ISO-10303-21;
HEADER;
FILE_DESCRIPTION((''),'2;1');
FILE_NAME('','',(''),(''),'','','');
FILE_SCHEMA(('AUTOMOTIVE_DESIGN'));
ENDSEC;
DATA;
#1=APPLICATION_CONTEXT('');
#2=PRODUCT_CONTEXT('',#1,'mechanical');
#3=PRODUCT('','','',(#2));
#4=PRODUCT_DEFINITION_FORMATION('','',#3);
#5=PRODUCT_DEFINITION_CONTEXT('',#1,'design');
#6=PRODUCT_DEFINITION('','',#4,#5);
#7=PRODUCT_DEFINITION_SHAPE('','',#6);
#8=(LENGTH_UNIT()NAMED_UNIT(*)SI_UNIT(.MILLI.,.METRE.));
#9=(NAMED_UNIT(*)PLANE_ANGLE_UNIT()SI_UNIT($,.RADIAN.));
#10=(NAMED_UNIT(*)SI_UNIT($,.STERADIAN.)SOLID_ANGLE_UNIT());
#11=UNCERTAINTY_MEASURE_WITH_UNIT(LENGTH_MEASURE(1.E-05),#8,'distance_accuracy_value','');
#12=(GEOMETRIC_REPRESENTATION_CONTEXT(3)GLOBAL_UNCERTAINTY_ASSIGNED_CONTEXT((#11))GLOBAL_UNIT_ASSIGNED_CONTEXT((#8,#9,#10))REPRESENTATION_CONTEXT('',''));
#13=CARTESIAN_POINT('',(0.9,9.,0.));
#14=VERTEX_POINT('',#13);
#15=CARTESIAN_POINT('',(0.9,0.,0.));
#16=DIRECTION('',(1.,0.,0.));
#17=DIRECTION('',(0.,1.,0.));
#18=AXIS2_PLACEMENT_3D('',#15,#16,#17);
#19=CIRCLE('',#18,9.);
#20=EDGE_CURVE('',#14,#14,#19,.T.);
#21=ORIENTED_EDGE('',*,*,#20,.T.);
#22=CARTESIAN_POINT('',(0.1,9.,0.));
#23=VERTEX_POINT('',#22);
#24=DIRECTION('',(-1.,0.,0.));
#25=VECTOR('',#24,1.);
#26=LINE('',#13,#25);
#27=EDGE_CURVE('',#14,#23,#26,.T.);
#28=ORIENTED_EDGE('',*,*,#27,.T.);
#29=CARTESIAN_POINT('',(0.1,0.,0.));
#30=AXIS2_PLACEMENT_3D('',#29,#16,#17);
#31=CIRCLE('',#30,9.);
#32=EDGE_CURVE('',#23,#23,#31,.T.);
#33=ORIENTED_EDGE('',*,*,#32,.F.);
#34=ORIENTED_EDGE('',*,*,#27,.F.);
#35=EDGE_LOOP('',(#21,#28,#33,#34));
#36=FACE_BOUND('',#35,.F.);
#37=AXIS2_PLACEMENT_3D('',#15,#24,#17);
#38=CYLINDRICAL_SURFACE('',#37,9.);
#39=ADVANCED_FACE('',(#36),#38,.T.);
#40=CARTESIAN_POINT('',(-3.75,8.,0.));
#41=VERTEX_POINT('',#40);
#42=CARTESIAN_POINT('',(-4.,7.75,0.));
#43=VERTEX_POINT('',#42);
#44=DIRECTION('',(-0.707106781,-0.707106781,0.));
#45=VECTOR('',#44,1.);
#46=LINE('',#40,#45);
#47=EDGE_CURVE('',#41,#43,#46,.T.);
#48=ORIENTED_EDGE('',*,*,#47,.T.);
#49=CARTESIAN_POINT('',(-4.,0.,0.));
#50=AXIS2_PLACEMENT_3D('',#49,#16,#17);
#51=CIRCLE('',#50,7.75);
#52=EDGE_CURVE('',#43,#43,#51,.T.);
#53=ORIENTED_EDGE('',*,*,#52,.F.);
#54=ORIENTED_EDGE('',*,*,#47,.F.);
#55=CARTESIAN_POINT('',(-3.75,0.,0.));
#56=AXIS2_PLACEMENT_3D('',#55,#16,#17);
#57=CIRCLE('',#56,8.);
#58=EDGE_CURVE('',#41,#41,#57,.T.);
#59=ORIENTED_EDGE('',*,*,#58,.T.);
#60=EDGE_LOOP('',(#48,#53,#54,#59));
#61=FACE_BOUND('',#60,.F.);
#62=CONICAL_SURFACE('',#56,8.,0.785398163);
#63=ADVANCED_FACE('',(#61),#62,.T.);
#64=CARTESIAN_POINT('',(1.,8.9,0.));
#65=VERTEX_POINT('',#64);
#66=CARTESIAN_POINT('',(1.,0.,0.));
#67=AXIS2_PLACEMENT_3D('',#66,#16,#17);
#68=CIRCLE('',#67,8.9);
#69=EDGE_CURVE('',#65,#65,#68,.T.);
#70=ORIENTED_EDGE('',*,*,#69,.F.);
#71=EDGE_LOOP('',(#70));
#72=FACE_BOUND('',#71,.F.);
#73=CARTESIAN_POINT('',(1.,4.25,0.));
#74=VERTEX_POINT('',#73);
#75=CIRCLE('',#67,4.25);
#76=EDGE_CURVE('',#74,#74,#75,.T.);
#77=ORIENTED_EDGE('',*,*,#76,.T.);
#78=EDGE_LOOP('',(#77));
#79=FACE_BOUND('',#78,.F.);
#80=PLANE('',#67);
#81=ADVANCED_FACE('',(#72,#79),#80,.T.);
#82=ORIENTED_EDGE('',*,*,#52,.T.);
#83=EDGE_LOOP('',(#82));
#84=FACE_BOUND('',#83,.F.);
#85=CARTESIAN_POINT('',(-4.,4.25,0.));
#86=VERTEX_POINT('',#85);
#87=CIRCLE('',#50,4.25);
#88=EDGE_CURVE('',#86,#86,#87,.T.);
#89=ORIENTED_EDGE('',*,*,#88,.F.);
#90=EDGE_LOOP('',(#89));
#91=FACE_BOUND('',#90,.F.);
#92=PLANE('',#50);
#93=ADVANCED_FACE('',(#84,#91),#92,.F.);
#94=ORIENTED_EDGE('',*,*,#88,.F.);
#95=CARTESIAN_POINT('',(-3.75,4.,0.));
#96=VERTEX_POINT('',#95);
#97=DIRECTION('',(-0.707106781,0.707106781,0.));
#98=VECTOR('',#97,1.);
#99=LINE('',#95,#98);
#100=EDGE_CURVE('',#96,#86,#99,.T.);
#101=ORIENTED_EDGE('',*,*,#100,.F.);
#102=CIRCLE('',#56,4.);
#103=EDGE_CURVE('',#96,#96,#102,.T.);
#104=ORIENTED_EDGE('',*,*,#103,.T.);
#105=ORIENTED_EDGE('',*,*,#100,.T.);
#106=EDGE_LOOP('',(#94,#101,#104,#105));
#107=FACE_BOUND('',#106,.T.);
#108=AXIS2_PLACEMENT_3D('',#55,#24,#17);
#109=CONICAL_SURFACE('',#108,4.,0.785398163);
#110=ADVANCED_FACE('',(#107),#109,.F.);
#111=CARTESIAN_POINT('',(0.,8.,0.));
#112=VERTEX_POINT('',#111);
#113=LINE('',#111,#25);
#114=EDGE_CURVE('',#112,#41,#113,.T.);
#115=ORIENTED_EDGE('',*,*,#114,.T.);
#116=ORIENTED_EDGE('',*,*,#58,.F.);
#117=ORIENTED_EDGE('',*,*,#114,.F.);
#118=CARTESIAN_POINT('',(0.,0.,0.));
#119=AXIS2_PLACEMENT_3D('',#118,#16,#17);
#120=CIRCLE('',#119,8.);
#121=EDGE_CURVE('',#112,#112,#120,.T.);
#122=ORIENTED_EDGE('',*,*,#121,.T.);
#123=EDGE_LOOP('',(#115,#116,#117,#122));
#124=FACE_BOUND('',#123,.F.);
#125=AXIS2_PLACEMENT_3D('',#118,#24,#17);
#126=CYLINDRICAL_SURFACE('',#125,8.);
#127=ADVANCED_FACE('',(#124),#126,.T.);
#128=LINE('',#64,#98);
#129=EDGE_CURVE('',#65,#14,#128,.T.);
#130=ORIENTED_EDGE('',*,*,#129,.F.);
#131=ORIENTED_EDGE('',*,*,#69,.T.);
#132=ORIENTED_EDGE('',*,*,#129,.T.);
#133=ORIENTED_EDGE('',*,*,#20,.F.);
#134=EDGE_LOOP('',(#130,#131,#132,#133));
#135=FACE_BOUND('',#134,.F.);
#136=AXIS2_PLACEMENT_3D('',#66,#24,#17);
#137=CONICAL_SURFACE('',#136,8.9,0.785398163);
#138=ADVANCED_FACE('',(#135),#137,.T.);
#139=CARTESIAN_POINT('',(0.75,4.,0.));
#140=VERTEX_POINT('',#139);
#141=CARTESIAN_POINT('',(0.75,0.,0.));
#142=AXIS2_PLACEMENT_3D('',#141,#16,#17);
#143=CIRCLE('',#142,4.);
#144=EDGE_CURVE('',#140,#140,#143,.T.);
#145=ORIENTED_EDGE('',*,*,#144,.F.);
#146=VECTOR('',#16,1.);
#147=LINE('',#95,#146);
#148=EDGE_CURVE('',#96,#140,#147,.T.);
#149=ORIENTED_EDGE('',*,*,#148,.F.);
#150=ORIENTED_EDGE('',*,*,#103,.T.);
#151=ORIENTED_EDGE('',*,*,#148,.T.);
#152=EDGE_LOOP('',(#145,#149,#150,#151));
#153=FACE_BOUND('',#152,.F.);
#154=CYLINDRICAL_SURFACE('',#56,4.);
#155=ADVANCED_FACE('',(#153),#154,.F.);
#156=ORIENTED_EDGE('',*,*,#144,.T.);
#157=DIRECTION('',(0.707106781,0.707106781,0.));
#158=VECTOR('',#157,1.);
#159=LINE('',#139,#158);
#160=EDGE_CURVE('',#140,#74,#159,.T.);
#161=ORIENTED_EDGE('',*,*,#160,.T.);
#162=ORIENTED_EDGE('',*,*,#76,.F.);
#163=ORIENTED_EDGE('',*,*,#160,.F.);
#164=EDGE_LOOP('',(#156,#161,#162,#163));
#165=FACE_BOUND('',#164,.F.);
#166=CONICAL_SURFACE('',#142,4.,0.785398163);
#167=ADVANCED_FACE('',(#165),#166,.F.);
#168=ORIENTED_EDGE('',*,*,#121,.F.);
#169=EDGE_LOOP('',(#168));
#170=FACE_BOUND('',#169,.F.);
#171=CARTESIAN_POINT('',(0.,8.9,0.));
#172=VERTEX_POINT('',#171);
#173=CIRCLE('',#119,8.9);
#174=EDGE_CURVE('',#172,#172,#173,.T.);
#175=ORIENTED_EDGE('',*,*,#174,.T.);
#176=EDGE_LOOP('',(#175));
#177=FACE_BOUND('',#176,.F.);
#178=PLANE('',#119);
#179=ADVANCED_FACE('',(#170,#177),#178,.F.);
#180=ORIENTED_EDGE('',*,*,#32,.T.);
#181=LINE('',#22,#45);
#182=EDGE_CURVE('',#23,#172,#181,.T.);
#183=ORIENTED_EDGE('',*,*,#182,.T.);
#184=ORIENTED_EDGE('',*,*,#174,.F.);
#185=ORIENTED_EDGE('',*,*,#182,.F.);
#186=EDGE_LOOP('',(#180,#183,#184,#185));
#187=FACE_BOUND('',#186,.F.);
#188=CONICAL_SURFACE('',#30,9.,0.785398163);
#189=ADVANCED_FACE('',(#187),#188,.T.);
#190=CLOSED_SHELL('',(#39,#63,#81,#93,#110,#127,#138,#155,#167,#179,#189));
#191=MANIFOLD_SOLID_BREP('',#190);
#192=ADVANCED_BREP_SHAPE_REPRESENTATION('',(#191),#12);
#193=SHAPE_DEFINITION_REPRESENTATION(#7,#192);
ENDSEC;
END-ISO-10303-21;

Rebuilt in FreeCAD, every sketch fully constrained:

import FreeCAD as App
import Part
import Sketcher


def add_polygon(sketch, points):
    """Adds a closed chain of lines whose ends are joined by coincident constraints."""
    first, n = sketch.GeometryCount, len(points)
    for a, b in zip(points, points[1:] + points[:1]):
        sketch.addGeometry(Part.LineSegment(App.Vector(*a, 0), App.Vector(*b, 0)), False)
    for i in range(n):
        sketch.addConstraint(Sketcher.Constraint("Coincident", first + i, 2, first + (i + 1) % n, 1))

doc = App.newDocument("Part")
body = doc.addObject("PartDesign::Body", "Body")

# Sketch on XY plane
sketch1 = body.newObject("Sketcher::SketchObject", "Sketch")
sketch1.AttachmentSupport = (doc.getObject("XY_Plane"), [""])
sketch1.MapMode = "FlatFace"
add_polygon(sketch1, [(-4, 4.25), (-3.75, 4), (0.75, 4), (1, 4.25), (1, 8.9), (0.9, 9), (0.1, 9), (0, 8.9), (0, 8), (-3.75, 8), (-4, 7.75)])  # lines 0-10
sketch1.addConstraint(Sketcher.Constraint("Horizontal", 1))
sketch1.addConstraint(Sketcher.Constraint("Vertical", 3))
sketch1.addConstraint(Sketcher.Constraint("Horizontal", 5))
sketch1.addConstraint(Sketcher.Constraint("Vertical", 7))
sketch1.addConstraint(Sketcher.Constraint("Horizontal", 8))
sketch1.addConstraint(Sketcher.Constraint("Vertical", 10))
sketch1.addConstraint(Sketcher.Constraint("PointOnObject", 6, 2, -2))
sketch1.addConstraint(Sketcher.Constraint("Perpendicular", 0, 2))
sketch1.addConstraint(Sketcher.Constraint("Perpendicular", 2, 4))
sketch1.addConstraint(Sketcher.Constraint("Perpendicular", 4, 6))
sketch1.addConstraint(Sketcher.Constraint("Parallel", 6, 9))
sketch1.addConstraint(Sketcher.Constraint("Horizontal", 3, 2, 6, 2))
sketch1.addConstraint(Sketcher.Constraint("Horizontal", 2, 2, 10, 2))
sketch1.addConstraint(Sketcher.Constraint("Vertical", 0, 2, 8, 2))
sketch1.addConstraint(Sketcher.Constraint("Equal", 0, 2))
sketch1.addConstraint(Sketcher.Constraint("DistanceX", -1, 1, 2, 2, 1.0))
sketch1.addConstraint(Sketcher.Constraint("DistanceY", -1, 1, 7, 2, 8.0))
sketch1.addConstraint(Sketcher.Constraint("DistanceY", 1, 2, 4, 2, 5.0))
sketch1.addConstraint(Sketcher.Constraint("DistanceY", 7, 2, 5, 2, 1.0))
sketch1.addConstraint(Sketcher.Constraint("DistanceX", 10, 2, 2, 2, 5.0))
sketch1.addConstraint(Sketcher.Constraint("DistanceX", -1, 1, 5, 2, 0.1))
sketch1.addConstraint(Sketcher.Constraint("DistanceX", 1, 2, 2, 2, 0.25))
revolution = body.newObject("PartDesign::Revolution", "Revolution")
revolution.Profile = sketch1
revolution.ReferenceAxis = (sketch1, ["H_Axis"])
revolution.Angle = 360

doc.recompute()
